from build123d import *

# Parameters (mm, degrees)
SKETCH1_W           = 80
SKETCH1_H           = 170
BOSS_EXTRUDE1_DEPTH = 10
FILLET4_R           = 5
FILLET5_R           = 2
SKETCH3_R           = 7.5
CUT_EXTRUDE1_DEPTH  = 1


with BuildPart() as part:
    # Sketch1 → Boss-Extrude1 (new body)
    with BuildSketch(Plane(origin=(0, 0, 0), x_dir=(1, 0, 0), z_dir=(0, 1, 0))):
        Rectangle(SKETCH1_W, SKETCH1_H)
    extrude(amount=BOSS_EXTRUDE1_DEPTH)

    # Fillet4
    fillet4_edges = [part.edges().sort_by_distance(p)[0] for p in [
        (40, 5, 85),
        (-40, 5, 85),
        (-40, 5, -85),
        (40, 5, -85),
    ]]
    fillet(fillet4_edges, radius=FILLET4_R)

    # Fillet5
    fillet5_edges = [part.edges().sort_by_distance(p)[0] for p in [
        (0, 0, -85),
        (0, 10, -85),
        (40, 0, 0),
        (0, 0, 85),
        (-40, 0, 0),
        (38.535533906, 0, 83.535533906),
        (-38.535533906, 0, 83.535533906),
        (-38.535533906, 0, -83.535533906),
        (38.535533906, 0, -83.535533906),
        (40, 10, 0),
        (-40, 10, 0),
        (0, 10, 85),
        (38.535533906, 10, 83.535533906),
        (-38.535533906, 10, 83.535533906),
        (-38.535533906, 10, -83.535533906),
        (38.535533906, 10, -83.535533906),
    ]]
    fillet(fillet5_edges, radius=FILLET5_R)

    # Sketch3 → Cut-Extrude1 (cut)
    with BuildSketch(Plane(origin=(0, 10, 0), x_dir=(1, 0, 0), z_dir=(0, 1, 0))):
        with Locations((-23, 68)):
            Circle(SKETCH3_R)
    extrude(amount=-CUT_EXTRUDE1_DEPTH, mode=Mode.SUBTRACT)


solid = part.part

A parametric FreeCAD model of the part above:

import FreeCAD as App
import Part
import Sketcher


def edges_at(feature, points):
    """Names of the edges that pass closest to the given points."""
    edges = feature.Shape.Edges
    near = lambda p: min(range(len(edges)), key=lambda i: edges[i].distToShape(Part.Vertex(*p))[0])
    return sorted({f"Edge{near(p) + 1}" for p in points})


def add_polygon(sketch, points):
    """Adds a closed chain of lines whose ends are joined by coincident constraints."""
    first, n = sketch.GeometryCount, len(points)
    for a, b in zip(points, points[1:] + points[:1]):
        sketch.addGeometry(Part.LineSegment(App.Vector(*a, 0), App.Vector(*b, 0)), False)
    for i in range(n):
        sketch.addConstraint(Sketcher.Constraint("Coincident", first + i, 2, first + (i + 1) % n, 1))

doc = App.newDocument("Part")
body = doc.addObject("PartDesign::Body", "Body")

# Sketch on XZ plane
sketch1 = doc.addObject("Sketcher::SketchObject", "Sketch")
body.addObject(sketch1)
sketch1.AttachmentSupport = (doc.XZ_Plane, [""])
sketch1.MapMode = "FlatFace"
add_polygon(sketch1, [(-40, -85), (-40, 85), (40, 85), (40, -85)])  # lines 0-3
sketch1.addConstraint([
    Sketcher.Constraint("Vertical", 0),
    Sketcher.Constraint("Horizontal", 1),
    Sketcher.Constraint("Vertical", 2),
    Sketcher.Constraint("Horizontal", 3),
    Sketcher.Constraint("Symmetric", 0, 2, 2, 2, -1, 1),
    Sketcher.Constraint("DistanceX", 1, 1, 1, 2, 80.0),
    Sketcher.Constraint("DistanceY", 0, 1, 0, 2, 170.0),
])
pad1 = doc.addObject("PartDesign::Pad", "Pad")
body.addObject(pad1)
pad1.Profile = sketch1
pad1.Length = 10
pad1.Reversed = True
doc.recompute()

fillet = doc.addObject("PartDesign::Fillet", "Fillet")
body.addObject(fillet)
fillet.Base = (pad1, edges_at(pad1, [
    (40, 5, 85),
    (-40, 5, 85),
    (-40, 5, -85),
    (40, 5, -85),
]))
fillet.Radius = 5
doc.recompute()

fillet2 = doc.addObject("PartDesign::Fillet", "Fillet001")
body.addObject(fillet2)
fillet2.Base = (fillet, edges_at(fillet, [
    (0, 0, -85),
    (0, 10, -85),
    (40, 0, 0),
    (0, 0, 85),
    (-40, 0, 0),
    (38.536, 0, 83.536),
    (-38.536, 0, 83.536),
    (-38.536, 0, -83.536),
    (38.536, 0, -83.536),
    (40, 10, 0),
    (-40, 10, 0),
    (0, 10, 85),
    (38.536, 10, 83.536),
    (-38.536, 10, 83.536),
    (-38.536, 10, -83.536),
    (38.536, 10, -83.536),
]))
fillet2.Radius = 2

# Sketch on XZ plane
sketch2 = doc.addObject("Sketcher::SketchObject", "Sketch001")
body.addObject(sketch2)
sketch2.AttachmentSupport = (doc.XZ_Plane, [""])
sketch2.MapMode = "FlatFace"
sketch2.AttachmentOffset = App.Placement(App.Vector(0, 0, -10), App.Rotation())
sketch2.addGeometry(Part.Circle(App.Vector(-23, -68, 0), App.Vector(0, 0, 1), 8), False)
sketch2.addConstraint([
    Sketcher.Constraint("Diameter", 0, 15.0),
    Sketcher.Constraint("DistanceX", 0, 3, -1, 1, 23.0),
    Sketcher.Constraint("DistanceY", 0, 3, -1, 1, 68.0),
])
pocket1 = doc.addObject("PartDesign::Pocket", "Pocket")
body.addObject(pocket1)
pocket1.Profile = sketch2
pocket1.Length = 1
pocket1.Reversed = True

doc.recompute()
